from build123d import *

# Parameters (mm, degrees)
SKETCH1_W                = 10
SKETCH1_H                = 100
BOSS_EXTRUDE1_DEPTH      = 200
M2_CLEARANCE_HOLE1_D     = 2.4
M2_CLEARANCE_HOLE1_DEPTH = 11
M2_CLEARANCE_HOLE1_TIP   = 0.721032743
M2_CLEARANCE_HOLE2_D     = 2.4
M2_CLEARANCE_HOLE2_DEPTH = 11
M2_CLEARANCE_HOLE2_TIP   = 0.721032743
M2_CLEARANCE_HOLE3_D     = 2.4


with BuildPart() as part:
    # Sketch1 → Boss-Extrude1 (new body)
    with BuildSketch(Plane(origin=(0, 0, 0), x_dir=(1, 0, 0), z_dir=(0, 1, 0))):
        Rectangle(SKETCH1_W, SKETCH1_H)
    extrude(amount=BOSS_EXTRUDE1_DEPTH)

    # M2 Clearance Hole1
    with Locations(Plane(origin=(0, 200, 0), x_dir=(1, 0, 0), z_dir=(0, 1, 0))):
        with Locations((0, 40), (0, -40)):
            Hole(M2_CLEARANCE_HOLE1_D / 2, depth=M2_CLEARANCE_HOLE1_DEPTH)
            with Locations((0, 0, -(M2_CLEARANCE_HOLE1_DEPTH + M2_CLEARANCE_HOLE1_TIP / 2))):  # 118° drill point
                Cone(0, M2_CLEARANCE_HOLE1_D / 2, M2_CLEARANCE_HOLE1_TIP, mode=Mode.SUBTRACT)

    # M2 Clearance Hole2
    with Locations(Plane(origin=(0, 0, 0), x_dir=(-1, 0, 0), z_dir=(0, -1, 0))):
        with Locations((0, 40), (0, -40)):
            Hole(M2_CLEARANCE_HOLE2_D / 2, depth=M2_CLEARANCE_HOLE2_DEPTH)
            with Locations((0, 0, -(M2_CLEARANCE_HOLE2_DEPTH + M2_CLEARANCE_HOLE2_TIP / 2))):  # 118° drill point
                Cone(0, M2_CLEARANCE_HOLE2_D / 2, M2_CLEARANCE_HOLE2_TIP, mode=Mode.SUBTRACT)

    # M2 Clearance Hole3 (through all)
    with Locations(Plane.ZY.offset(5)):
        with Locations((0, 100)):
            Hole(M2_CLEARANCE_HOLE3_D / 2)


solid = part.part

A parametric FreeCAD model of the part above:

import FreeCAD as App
import Part
import Sketcher

V = App.Vector
Q = App.Units.Quantity

doc = App.newDocument("Part")
body = doc.addObject("PartDesign::Body", "Body")

# Sketch on XZ plane
sketch1 = body.newObject("Sketcher::SketchObject", "Sketch")
sketch1.AttachmentSupport = (doc.getObject("XZ_Plane"), [""])
sketch1.MapMode = "FlatFace"
sketch1.addGeometry(Part.LineSegment(V(-5, -50, 0), V(-5, 50, 0)), False)
sketch1.addGeometry(Part.LineSegment(V(-5, 50, 0), V(5, 50, 0)), False)
sketch1.addGeometry(Part.LineSegment(V(5, 50, 0), V(5, -50, 0)), False)
sketch1.addGeometry(Part.LineSegment(V(5, -50, 0), V(-5, -50, 0)), False)
sketch1.addConstraint(Sketcher.Constraint("Coincident", 0, 2, 1, 1))
sketch1.addConstraint(Sketcher.Constraint("Coincident", 1, 2, 2, 1))
sketch1.addConstraint(Sketcher.Constraint("Coincident", 2, 2, 3, 1))
sketch1.addConstraint(Sketcher.Constraint("Coincident", 3, 2, 0, 1))
sketch1.addConstraint(Sketcher.Constraint("Vertical", 0))
sketch1.addConstraint(Sketcher.Constraint("Horizontal", 1))
sketch1.addConstraint(Sketcher.Constraint("Vertical", 2))
sketch1.addConstraint(Sketcher.Constraint("Horizontal", 3))
sketch1.addConstraint(Sketcher.Constraint("Symmetric", 0, 2, 2, 2, -1, 1))
sketch1.addConstraint(Sketcher.Constraint("DistanceX", 1, 1, 1, 2, Q("10 mm")))
sketch1.addConstraint(Sketcher.Constraint("DistanceY", 0, 1, 0, 2, Q("100 mm")))
pad1 = body.newObject("PartDesign::Pad", "Pad")
pad1.Profile = sketch1
pad1.Length = 200
pad1.Reversed = True

# Sketch on XZ plane
sketch2 = body.newObject("Sketcher::SketchObject", "Sketch001")
sketch2.AttachmentSupport = (doc.getObject("XZ_Plane"), [""])
sketch2.MapMode = "FlatFace"
sketch2.AttachmentOffset = App.Placement(V(0, 0, -200), App.Rotation())
sketch2.addGeometry(Part.Circle(V(0, -40, 0), V(0, 0, 1), 1.2), False)
sketch2.addGeometry(Part.Circle(V(0, 40, 0), V(0, 0, 1), 1.2), False)
sketch2.addConstraint(Sketcher.Constraint("Equal", 0, 1))
sketch2.addConstraint(Sketcher.Constraint("Symmetric", 0, 3, 1, 3, -1, 1))
sketch2.addConstraint(Sketcher.Constraint("PointOnObject", 0, 3, -2))
sketch2.addConstraint(Sketcher.Constraint("Diameter", 0, Q("2.4 mm")))
sketch2.addConstraint(Sketcher.Constraint("DistanceY", 0, 3, -1, 1, Q("40 mm")))
doc.recompute()
hole = body.newObject("PartDesign::Hole", "Hole")
hole.Profile = sketch2
hole.ThreadType = "None"
hole.Diameter = 2.4
hole.DepthType = "Dimension"
hole.Depth = 11
hole.DrillPoint = "Angled"
hole.DrillPointAngle = 118
hole.Reversed = True

# Sketch on XZ plane
sketch3 = body.newObject("Sketcher::SketchObject", "Sketch002")
sketch3.AttachmentSupport = (doc.getObject("XZ_Plane"), [""])
sketch3.MapMode = "FlatFace"
sketch3.addGeometry(Part.Circle(V(0, -40, 0), V(0, 0, 1), 1.2), False)
sketch3.addGeometry(Part.Circle(V(0, 40, 0), V(0, 0, 1), 1.2), False)
sketch3.addConstraint(Sketcher.Constraint("Equal", 0, 1))
sketch3.addConstraint(Sketcher.Constraint("Symmetric", 0, 3, 1, 3, -1, 1))
sketch3.addConstraint(Sketcher.Constraint("PointOnObject", 0, 3, -2))
sketch3.addConstraint(Sketcher.Constraint("Diameter", 0, Q("2.4 mm")))
sketch3.addConstraint(Sketcher.Constraint("DistanceY", 0, 3, -1, 1, Q("40 mm")))
doc.recompute()
hole2 = body.newObject("PartDesign::Hole", "Hole001")
hole2.Profile = sketch3
hole2.ThreadType = "None"
hole2.Diameter = 2.4
hole2.DepthType = "Dimension"
hole2.Depth = 11
hole2.DrillPoint = "Angled"
hole2.DrillPointAngle = 118

# Sketch on YZ plane
sketch4 = body.newObject("Sketcher::SketchObject", "Sketch003")
sketch4.AttachmentSupport = (doc.getObject("YZ_Plane"), [""])
sketch4.MapMode = "FlatFace"
sketch4.AttachmentOffset = App.Placement(V(0, 0, -5), App.Rotation())
sketch4.addGeometry(Part.Circle(V(100, 0, 0), V(0, 0, 1), 1.2), False)
sketch4.addConstraint(Sketcher.Constraint("PointOnObject", 0, 3, -1))
sketch4.addConstraint(Sketcher.Constraint("Diameter", 0, Q("2.4 mm")))
sketch4.addConstraint(Sketcher.Constraint("DistanceX", -1, 1, 0, 3, Q("100 mm")))
doc.recompute()
hole3 = body.newObject("PartDesign::Hole", "Hole002")
hole3.Profile = sketch4
hole3.ThreadType = "None"
hole3.Diameter = 2.4
hole3.DepthType = "ThroughAll"
hole3.Reversed = True

doc.recompute()
